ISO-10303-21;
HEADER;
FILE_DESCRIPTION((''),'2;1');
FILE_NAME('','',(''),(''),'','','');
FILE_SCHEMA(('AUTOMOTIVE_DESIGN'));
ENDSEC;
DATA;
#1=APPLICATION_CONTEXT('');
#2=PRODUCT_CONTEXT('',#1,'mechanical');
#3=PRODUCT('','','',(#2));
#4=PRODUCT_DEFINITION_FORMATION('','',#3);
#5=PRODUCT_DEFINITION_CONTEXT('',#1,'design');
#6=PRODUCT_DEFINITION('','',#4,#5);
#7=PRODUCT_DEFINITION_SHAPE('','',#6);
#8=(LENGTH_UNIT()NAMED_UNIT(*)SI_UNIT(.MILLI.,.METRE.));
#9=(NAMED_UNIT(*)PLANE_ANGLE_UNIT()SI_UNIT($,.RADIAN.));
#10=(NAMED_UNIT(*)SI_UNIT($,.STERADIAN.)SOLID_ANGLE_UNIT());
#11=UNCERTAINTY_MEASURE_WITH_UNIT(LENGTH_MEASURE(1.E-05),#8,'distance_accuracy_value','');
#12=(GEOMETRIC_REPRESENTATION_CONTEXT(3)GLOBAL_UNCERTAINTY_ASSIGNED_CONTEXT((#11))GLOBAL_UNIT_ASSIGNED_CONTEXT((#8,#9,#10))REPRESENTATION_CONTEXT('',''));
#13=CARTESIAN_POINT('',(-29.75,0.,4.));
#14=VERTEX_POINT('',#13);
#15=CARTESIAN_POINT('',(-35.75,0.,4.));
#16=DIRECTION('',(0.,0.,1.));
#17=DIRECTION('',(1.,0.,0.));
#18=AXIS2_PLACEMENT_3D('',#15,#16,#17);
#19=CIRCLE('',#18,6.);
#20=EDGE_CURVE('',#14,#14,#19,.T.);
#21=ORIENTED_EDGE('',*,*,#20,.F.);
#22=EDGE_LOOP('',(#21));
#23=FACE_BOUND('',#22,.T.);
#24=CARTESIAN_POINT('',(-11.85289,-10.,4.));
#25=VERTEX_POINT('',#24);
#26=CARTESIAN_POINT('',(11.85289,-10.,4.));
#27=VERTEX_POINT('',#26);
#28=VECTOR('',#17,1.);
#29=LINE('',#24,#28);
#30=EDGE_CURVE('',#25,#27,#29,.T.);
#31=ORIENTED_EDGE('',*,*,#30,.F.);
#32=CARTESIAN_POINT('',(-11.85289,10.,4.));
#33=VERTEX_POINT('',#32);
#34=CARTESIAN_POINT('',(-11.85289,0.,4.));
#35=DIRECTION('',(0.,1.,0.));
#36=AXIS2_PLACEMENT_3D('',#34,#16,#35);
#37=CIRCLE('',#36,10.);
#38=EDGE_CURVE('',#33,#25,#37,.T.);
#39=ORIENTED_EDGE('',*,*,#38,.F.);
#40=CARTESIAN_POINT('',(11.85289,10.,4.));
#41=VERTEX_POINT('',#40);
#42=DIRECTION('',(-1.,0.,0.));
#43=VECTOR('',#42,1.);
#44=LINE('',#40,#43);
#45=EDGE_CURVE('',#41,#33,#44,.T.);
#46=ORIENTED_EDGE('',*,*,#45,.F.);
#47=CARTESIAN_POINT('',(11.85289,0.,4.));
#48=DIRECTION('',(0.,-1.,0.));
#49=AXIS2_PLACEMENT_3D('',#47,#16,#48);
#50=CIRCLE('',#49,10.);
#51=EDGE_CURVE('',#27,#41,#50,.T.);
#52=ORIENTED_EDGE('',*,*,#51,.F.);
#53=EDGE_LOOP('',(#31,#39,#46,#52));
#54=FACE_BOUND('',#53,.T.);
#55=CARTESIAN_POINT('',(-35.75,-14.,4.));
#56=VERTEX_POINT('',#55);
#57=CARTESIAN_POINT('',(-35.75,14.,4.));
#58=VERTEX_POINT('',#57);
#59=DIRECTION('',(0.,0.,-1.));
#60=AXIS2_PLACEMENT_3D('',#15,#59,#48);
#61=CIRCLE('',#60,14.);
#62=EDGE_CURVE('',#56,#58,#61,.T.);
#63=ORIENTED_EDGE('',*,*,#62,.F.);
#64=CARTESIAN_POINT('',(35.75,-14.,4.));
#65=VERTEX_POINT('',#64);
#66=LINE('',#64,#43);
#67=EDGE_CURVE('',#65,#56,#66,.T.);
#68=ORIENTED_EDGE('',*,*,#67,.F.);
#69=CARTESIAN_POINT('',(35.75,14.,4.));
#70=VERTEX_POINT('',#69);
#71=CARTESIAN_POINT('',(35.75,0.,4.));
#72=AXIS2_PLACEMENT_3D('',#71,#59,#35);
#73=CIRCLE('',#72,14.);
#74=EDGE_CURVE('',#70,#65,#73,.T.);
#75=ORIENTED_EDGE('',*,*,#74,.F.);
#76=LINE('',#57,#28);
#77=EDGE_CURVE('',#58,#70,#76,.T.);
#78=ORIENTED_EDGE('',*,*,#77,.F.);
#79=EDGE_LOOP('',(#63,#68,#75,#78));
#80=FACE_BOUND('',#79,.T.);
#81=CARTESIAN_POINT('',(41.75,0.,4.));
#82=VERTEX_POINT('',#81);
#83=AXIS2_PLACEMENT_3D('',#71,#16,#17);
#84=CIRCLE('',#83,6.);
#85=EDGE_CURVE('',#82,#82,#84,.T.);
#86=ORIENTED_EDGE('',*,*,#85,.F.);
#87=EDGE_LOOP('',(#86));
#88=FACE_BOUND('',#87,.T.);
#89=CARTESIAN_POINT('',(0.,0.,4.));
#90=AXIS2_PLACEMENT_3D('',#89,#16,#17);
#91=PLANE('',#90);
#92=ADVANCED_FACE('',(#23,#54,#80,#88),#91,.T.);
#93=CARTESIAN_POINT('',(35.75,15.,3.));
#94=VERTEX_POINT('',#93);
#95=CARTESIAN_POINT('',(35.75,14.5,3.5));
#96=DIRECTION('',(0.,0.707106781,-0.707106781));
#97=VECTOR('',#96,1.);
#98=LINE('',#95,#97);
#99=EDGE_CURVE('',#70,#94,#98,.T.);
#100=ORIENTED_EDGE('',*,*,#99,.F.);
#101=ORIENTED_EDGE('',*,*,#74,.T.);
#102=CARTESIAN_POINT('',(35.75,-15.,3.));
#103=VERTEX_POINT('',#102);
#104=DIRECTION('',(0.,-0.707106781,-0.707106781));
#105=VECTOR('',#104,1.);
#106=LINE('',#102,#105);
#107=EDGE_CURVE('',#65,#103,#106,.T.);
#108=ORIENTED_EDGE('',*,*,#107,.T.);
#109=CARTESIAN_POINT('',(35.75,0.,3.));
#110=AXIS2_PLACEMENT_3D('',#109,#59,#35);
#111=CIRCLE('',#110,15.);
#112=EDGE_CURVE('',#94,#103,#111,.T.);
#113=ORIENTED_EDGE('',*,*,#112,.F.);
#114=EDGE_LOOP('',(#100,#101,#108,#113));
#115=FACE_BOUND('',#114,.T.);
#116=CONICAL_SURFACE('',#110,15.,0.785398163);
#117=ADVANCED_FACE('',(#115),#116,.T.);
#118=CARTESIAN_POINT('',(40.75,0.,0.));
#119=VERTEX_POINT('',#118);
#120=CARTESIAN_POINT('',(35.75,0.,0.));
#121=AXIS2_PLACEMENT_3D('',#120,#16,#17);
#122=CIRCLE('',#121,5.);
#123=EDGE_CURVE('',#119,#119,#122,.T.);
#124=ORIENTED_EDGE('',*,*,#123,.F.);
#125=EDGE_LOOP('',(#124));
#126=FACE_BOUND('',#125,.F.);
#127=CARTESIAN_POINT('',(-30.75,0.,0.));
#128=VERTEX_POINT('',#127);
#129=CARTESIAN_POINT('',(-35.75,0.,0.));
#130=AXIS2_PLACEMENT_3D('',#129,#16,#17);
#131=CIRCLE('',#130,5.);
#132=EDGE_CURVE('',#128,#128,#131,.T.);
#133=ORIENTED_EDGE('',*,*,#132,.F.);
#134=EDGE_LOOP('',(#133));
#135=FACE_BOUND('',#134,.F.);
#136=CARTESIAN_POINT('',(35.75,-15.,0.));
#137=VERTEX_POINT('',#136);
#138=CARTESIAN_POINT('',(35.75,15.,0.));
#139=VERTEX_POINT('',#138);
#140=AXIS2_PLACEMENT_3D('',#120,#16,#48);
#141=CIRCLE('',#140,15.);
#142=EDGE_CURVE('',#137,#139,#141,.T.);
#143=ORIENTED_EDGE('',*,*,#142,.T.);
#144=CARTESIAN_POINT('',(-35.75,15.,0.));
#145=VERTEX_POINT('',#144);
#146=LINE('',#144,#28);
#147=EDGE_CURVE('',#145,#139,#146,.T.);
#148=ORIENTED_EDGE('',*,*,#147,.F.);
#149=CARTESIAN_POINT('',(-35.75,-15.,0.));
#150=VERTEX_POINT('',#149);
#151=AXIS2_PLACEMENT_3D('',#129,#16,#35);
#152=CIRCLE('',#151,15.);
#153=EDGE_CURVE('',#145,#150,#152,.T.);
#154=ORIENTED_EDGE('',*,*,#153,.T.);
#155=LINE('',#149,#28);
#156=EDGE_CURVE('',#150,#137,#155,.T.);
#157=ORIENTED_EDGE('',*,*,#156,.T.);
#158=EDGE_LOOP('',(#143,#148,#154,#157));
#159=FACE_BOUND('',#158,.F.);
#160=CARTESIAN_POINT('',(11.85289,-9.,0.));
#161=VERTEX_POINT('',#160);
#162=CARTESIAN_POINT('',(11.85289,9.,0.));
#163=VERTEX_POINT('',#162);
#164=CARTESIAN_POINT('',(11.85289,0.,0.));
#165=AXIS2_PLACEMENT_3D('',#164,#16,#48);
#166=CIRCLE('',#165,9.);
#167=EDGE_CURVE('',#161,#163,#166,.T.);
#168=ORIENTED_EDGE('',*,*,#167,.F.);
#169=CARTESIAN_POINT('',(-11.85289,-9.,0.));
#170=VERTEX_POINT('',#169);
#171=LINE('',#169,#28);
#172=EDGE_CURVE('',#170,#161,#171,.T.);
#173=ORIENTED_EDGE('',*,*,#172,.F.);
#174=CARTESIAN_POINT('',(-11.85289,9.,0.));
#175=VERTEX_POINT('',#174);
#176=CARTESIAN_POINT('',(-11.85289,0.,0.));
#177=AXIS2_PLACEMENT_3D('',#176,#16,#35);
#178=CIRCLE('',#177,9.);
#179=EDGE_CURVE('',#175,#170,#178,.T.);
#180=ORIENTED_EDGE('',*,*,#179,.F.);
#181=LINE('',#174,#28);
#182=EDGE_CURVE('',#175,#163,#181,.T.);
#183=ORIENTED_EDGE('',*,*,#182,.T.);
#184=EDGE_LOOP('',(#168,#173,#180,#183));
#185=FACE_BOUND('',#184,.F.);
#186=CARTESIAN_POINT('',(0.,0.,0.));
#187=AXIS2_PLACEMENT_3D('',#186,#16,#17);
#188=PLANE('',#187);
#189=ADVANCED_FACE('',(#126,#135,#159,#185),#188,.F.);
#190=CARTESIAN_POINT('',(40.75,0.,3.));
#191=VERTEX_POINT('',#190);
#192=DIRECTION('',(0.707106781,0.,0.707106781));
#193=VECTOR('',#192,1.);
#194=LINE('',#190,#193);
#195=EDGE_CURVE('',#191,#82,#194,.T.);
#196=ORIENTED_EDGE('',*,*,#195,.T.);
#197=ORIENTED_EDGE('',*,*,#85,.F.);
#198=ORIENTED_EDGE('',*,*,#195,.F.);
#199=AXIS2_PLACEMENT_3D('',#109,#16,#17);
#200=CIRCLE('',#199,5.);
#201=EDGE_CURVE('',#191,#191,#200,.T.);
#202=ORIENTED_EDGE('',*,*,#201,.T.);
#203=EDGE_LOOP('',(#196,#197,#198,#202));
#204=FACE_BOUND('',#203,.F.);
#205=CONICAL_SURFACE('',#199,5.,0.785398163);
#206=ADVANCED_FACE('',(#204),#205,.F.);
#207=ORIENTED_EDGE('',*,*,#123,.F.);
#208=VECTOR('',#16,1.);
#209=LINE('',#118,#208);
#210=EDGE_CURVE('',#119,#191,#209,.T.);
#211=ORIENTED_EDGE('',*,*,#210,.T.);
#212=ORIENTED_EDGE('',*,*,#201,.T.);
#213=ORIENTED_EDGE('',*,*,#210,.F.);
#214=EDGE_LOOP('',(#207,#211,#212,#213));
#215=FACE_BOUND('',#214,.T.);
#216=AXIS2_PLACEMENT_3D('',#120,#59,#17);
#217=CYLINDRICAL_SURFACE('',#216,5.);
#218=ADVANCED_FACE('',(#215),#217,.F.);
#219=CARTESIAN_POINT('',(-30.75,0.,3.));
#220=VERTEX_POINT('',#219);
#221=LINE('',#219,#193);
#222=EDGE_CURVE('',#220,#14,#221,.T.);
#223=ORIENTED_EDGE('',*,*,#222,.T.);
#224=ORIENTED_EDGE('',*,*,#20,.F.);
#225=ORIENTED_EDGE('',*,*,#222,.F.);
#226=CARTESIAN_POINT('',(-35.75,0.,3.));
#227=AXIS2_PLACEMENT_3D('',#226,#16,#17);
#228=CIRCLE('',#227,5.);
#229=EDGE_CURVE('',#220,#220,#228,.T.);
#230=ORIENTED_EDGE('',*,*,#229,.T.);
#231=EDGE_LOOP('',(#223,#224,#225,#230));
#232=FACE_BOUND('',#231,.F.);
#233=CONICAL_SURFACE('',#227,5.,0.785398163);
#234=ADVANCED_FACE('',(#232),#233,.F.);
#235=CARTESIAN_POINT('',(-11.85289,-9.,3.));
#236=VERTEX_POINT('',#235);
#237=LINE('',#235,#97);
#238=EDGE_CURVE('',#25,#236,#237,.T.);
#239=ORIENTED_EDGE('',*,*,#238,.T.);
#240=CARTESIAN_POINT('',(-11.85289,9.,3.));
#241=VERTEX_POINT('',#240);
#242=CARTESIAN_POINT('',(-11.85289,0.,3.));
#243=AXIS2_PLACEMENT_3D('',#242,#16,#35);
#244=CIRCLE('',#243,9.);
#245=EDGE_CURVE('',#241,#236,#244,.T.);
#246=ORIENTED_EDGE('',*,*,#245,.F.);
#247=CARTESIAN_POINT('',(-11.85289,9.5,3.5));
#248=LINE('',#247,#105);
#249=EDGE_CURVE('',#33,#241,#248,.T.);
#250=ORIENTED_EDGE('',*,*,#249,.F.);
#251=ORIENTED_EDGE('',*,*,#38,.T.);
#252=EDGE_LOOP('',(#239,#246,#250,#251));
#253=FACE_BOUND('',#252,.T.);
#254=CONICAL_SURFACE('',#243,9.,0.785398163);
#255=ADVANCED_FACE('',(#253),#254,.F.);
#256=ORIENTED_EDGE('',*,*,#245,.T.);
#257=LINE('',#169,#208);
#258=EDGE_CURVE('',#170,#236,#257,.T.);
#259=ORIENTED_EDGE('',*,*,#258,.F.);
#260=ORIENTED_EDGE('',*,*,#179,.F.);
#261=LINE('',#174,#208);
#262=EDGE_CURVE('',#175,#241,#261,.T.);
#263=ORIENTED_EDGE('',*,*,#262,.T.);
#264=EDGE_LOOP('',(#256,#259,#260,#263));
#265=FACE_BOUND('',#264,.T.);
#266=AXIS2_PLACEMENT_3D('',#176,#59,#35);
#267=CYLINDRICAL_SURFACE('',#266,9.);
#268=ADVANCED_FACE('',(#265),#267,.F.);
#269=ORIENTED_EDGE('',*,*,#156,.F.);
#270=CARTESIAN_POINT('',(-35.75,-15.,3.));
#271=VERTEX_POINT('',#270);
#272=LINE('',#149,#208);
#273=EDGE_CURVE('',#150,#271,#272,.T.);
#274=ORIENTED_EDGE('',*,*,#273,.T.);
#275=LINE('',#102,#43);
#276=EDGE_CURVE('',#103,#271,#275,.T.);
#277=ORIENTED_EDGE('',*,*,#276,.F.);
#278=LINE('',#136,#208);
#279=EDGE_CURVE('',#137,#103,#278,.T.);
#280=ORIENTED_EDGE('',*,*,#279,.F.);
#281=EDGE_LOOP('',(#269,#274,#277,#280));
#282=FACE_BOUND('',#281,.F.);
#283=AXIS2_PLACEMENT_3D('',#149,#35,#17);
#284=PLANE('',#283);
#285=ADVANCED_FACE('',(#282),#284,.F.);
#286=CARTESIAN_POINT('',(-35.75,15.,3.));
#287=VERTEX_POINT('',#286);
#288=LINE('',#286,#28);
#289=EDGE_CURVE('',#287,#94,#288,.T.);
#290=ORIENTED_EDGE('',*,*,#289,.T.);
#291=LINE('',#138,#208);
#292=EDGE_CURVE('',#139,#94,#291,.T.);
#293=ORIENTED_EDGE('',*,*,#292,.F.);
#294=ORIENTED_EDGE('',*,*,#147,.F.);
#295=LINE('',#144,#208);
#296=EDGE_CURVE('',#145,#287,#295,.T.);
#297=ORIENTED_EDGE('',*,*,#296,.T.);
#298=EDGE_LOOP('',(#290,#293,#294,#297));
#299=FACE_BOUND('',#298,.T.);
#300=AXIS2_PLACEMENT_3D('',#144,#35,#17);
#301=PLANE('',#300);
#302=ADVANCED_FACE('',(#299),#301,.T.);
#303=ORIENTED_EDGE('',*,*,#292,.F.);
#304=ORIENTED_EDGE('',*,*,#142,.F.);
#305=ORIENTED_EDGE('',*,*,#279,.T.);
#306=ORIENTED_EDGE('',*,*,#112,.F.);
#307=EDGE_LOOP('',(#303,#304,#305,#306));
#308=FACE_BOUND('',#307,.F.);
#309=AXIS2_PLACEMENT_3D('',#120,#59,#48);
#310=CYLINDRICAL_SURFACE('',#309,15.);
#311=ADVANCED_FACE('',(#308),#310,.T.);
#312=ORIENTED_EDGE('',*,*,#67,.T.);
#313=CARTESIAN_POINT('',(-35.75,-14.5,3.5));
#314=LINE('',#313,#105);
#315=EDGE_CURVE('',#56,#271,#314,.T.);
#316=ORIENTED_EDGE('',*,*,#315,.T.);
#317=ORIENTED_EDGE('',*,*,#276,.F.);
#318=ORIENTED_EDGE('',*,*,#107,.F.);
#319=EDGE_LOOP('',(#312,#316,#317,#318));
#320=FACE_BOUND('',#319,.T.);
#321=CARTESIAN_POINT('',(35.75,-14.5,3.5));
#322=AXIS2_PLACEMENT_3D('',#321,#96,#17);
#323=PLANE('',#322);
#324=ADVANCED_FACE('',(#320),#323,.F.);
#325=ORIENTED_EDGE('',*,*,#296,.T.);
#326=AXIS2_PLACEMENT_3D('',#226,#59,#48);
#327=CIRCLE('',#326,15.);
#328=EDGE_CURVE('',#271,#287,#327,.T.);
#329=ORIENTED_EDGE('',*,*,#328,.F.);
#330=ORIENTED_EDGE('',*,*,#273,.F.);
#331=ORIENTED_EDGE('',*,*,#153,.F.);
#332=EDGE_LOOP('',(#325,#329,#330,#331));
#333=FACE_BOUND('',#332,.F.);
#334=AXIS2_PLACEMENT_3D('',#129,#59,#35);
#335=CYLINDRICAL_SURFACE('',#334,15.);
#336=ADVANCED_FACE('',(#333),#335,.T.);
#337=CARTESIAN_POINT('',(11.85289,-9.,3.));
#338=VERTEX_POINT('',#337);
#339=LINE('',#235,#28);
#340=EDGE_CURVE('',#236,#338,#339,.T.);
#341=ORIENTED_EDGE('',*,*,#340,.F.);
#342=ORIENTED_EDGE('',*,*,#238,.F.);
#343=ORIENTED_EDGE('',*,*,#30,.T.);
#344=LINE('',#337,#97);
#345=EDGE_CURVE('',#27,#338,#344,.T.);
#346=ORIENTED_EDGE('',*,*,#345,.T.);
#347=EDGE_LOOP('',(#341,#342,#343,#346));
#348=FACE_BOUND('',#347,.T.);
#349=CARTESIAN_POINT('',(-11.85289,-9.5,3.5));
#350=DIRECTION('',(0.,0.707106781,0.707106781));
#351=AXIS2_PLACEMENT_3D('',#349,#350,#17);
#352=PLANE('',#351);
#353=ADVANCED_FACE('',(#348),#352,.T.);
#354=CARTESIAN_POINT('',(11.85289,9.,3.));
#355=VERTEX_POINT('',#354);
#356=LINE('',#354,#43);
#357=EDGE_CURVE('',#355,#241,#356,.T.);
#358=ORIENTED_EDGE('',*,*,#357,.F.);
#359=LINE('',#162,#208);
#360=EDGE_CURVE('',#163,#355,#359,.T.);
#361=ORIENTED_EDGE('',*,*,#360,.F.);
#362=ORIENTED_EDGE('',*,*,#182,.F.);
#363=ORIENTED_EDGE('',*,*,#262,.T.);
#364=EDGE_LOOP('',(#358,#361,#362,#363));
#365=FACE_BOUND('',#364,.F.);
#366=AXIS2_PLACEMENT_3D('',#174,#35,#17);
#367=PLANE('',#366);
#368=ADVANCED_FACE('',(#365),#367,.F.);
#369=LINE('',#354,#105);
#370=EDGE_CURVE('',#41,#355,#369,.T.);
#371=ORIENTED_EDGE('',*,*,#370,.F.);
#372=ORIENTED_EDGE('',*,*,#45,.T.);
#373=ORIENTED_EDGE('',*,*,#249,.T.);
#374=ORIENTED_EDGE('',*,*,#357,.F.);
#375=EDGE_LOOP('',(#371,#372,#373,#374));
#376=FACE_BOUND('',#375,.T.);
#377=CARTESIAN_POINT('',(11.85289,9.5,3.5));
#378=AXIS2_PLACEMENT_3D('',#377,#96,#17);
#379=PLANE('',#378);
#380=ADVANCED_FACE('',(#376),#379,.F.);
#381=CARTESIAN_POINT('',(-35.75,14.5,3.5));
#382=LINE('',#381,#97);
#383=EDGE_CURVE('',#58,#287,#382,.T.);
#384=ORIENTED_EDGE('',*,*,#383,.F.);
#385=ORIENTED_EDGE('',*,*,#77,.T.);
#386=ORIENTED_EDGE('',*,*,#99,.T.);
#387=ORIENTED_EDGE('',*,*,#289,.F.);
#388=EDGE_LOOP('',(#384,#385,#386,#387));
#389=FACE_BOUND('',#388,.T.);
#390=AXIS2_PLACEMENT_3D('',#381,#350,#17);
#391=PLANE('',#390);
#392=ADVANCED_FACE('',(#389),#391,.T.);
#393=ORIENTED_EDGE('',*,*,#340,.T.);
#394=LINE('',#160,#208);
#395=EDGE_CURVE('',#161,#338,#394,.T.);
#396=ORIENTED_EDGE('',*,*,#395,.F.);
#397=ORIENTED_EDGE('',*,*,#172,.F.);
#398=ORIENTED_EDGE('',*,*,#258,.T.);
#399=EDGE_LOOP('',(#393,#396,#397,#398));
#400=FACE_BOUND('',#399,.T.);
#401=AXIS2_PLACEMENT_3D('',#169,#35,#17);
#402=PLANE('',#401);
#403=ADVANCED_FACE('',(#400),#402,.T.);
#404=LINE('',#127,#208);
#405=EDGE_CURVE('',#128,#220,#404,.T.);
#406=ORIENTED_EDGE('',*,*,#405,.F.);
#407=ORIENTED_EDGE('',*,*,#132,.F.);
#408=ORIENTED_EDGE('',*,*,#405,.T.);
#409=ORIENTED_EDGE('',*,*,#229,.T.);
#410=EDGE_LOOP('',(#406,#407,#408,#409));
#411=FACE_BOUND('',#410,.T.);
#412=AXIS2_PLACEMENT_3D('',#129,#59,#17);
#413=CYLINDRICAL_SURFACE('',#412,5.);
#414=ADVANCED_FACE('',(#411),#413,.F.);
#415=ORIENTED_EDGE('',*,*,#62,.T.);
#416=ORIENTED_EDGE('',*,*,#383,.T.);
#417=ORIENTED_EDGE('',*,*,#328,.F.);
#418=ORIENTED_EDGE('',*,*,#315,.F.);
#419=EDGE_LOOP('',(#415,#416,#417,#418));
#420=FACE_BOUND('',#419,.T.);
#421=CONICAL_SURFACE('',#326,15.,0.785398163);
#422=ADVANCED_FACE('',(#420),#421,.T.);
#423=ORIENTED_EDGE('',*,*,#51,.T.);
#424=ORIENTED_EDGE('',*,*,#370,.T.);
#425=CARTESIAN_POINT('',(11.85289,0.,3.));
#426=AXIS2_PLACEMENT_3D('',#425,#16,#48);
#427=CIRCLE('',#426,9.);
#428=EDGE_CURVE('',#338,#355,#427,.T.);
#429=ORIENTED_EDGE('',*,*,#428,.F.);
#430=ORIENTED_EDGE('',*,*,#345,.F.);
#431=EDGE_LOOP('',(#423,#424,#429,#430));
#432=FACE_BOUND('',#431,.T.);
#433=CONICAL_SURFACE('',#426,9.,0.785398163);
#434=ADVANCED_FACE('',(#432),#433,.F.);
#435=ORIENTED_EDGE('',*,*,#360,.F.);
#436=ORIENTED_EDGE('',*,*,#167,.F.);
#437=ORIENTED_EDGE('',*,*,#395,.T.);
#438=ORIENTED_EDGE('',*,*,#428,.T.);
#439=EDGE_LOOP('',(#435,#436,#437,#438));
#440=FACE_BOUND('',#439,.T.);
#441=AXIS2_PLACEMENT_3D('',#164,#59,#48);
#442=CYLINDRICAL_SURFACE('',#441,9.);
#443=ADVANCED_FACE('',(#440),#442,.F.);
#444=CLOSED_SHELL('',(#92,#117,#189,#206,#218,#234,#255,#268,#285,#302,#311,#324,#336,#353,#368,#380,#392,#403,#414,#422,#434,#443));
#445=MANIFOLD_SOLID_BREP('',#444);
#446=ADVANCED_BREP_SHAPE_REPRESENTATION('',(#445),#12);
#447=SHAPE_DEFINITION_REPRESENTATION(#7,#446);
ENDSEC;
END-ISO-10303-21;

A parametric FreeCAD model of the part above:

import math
import FreeCAD as App
import Part
import Sketcher
Q = App.Units.Quantity


def edges_at(feature, points):
    """Names of the edges that pass closest to the given points."""
    edges = feature.Shape.Edges
    near = lambda p: min(range(len(edges)), key=lambda i: edges[i].distToShape(Part.Vertex(*p))[0])
    return sorted({f"Edge{near(p) + 1}" for p in points})

doc = App.newDocument("Part")
params = doc.addObject("Spreadsheet::Sheet", "Params")
for row, (alias, value) in enumerate([
    ("sketch1_diameter", "10 mm"),
    ("sketch1_radius", "15 mm"),
    ("sketch1_radius2", "9 mm"),
    ("sketch1_width", "71.5 mm"),
    ("pad1_length", "4 mm"),
    ("chamfer_size", "1 mm"),
    ("chamfer2_size", "1 mm"),
    ("chamfer3_size", "1 mm"),
], start=1):
    params.set(f"A{row}", alias)
    params.set(f"B{row}", "=" + value)
    params.setAlias(f"B{row}", alias)

body = doc.addObject("PartDesign::Body", "Body")

# Sketch on XY plane
sketch1 = doc.addObject("Sketcher::SketchObject", "Sketch")
body.addObject(sketch1)
sketch1.AttachmentSupport = (doc.XY_Plane, [""])
sketch1.MapMode = "FlatFace"
sketch1.addGeometry([
    Part.ArcOfCircle(Part.Circle(App.Vector(-35.75, 0, 0), App.Vector(0, 0, 1), 15), math.radians(90), math.radians(270)),  # 0
    Part.LineSegment(App.Vector(-35.75, -15, 0), App.Vector(35.75, -15, 0)),  # 1
    Part.ArcOfCircle(Part.Circle(App.Vector(35.75, 0, 0), App.Vector(0, 0, 1), 15), math.radians(-90), math.radians(90)),  # 2
    Part.LineSegment(App.Vector(35.75, 15, 0), App.Vector(-35.75, 15, 0)),  # 3
    Part.Circle(App.Vector(-35.75, 0, 0), App.Vector(0, 0, 1), 5),  # 4
    Part.ArcOfCircle(Part.Circle(App.Vector(-11.85289, 0, 0), App.Vector(0, 0, 1), 9), math.radians(90), math.radians(270)),  # 5
    Part.LineSegment(App.Vector(-11.85289, 9, 0), App.Vector(11.85289, 9, 0)),  # 6
    Part.ArcOfCircle(Part.Circle(App.Vector(11.85289, 0, 0), App.Vector(0, 0, 1), 9), math.radians(-90), math.radians(90)),  # 7
    Part.LineSegment(App.Vector(11.85289, -9, 0), App.Vector(-11.85289, -9, 0)),  # 8
    Part.Circle(App.Vector(35.75, 0, 0), App.Vector(0, 0, 1), 5),  # 9
], False)
sketch1.addConstraint([
    Sketcher.Constraint("Tangent", 0, 2, 1, 1),
    Sketcher.Constraint("Tangent", 1, 2, 2, 1),
    Sketcher.Constraint("Tangent", 2, 2, 3, 1),
    Sketcher.Constraint("Tangent", 3, 2, 0, 1),
    Sketcher.Constraint("Tangent", 5, 1, 6, 1),
    Sketcher.Constraint("Tangent", 6, 2, 7, 2),
    Sketcher.Constraint("Tangent", 7, 1, 8, 1),
    Sketcher.Constraint("Tangent", 8, 2, 5, 2),
    Sketcher.Constraint("Horizontal", 1),
    Sketcher.Constraint("Horizontal", 3),
    Sketcher.Constraint("Horizontal", 6),
    Sketcher.Constraint("Horizontal", 8),
    Sketcher.Constraint("Coincident", 4, 3, 0, 3),
    Sketcher.Constraint("Coincident", 9, 3, 2, 3),
    Sketcher.Constraint("Equal", 4, 9),
    Sketcher.Constraint("Symmetric", 0, 3, 2, 3, -1, 1),
    Sketcher.Constraint("Symmetric", 5, 3, 7, 3, -1, 1),
    Sketcher.Constraint("Diameter", 4, Q("10 mm")),
    Sketcher.Constraint("Radius", 0, Q("15 mm")),
    Sketcher.Constraint("Radius", 5, Q("9 mm")),
    Sketcher.Constraint("DistanceX", 1, 1, 1, 2, Q("71.5 mm")),
    Sketcher.Constraint("DistanceX", 6, 1, 6, 2, Q("23.70578 mm")),
])
sketch1.setExpression("Constraints[17]", "Params.sketch1_diameter")
sketch1.setExpression("Constraints[18]", "Params.sketch1_radius")
sketch1.setExpression("Constraints[19]", "Params.sketch1_radius2")
sketch1.setExpression("Constraints[20]", "Params.sketch1_width")
pad1 = doc.addObject("PartDesign::Pad", "Pad")
body.addObject(pad1)
pad1.Profile = sketch1
pad1.setExpression("Length", "Params.pad1_length")
doc.recompute()

chamfer = doc.addObject("PartDesign::Chamfer", "Chamfer")
body.addObject(chamfer)
chamfer.Base = (pad1, edges_at(pad1, [(-40.75, 0, 4), (30.75, 0, 4)]))
chamfer.setExpression("Size", "Params.chamfer_size")
doc.recompute()

chamfer2 = doc.addObject("PartDesign::Chamfer", "Chamfer001")
body.addObject(chamfer2)
chamfer2.Base = (chamfer, edges_at(chamfer, [
    (0, 15, 4),
    (50.75, 0, 4),
    (0, -15, 4),
    (-50.75, 0, 4),
]))
chamfer2.setExpression("Size", "Params.chamfer2_size")
doc.recompute()

chamfer3 = doc.addObject("PartDesign::Chamfer", "Chamfer002")
body.addObject(chamfer3)
chamfer3.Base = (chamfer2, edges_at(chamfer2, [
    (20.853, 0, 4),
    (0, -9, 4),
    (-20.853, 0, 4),
    (0, 9, 4),
]))
chamfer3.setExpression("Size", "Params.chamfer3_size")

doc.recompute()
